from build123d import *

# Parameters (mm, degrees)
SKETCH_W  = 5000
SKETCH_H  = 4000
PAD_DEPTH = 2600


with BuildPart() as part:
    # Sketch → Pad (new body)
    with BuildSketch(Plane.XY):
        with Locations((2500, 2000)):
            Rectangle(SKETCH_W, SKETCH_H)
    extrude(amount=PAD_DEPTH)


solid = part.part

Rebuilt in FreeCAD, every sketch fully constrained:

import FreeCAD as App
import Part
import Sketcher
from FreeCAD import Vector
Q = App.Units.Quantity

doc = App.newDocument("Part")
params = doc.addObject("Spreadsheet::Sheet", "Params")
for row, (alias, value) in enumerate([
    ("sketch1_width", "5000 mm"),
    ("sketch1_height", "4000 mm"),
    ("pad1_length", "2600 mm"),
], start=1):
    params.set(f"A{row}", alias)
    params.set(f"B{row}", "=" + value)
    params.setAlias(f"B{row}", alias)

body = doc.addObject("PartDesign::Body", "Body")

sketch1 = body.newObject("Sketcher::SketchObject", "Sketch")
sketch1.AttachmentSupport = (doc.getObject("XY_Plane"), [""])
sketch1.MapMode = "FlatFace"
sketch1.addGeometry([
    Part.LineSegment(Vector(0, 4000, 0), Vector(0, 0, 0)),
    Part.LineSegment(Vector(0, 0, 0), Vector(5000, 0, 0)),
    Part.LineSegment(Vector(5000, 0, 0), Vector(5000, 4000, 0)),
    Part.LineSegment(Vector(5000, 4000, 0), Vector(0, 4000, 0)),
], False)
sketch1.addConstraint([
    Sketcher.Constraint("Coincident", 0, 2, 1, 1),
    Sketcher.Constraint("Coincident", 1, 2, 2, 1),
    Sketcher.Constraint("Coincident", 2, 2, 3, 1),
    Sketcher.Constraint("Coincident", 3, 2, 0, 1),
    Sketcher.Constraint("Vertical", 0),
    Sketcher.Constraint("Horizontal", 1),
    Sketcher.Constraint("Vertical", 2),
    Sketcher.Constraint("Horizontal", 3),
    Sketcher.Constraint("Coincident", 0, 2, -1, 1),
    Sketcher.Constraint("DistanceX", 1, 1, 1, 2, Q("5000 mm")),
    Sketcher.Constraint("DistanceY", 0, 2, 0, 1, Q("4000 mm")),
])
sketch1.setExpression("Constraints[9]", "Params.sketch1_width")
sketch1.setExpression("Constraints[10]", "Params.sketch1_height")
pad1 = body.newObject("PartDesign::Pad", "Pad")
pad1.Profile = sketch1
pad1.setExpression("Length", "Params.pad1_length")

doc.recompute()
